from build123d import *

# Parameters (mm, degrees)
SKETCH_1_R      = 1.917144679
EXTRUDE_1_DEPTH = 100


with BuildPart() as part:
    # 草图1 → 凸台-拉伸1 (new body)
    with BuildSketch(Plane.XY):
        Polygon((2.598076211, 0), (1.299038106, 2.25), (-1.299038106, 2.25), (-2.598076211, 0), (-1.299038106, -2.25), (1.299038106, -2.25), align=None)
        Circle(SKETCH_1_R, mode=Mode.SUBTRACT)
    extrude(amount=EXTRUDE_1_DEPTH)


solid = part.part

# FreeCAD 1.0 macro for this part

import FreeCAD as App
import Part
import Sketcher

V = App.Vector
Q = App.Units.Quantity


def add_polygon(sketch, points):
    """Adds a closed chain of lines whose ends are joined by coincident constraints."""
    first, n = sketch.GeometryCount, len(points)
    for a, b in zip(points, points[1:] + points[:1]):
        sketch.addGeometry(Part.LineSegment(App.Vector(*a, 0), App.Vector(*b, 0)), False)
    for i in range(n):
        sketch.addConstraint(Sketcher.Constraint("Coincident", first + i, 2, first + (i + 1) % n, 1))

doc = App.newDocument("Part")
body = doc.addObject("PartDesign::Body", "Body")

# Sketch on XY plane
sketch1 = body.newObject("Sketcher::SketchObject", "Sketch")
sketch1.AttachmentSupport = (doc.getObject("XY_Plane"), [""])
sketch1.MapMode = "FlatFace"
add_polygon(sketch1, [(2.598076, 0), (1.299038, 2.25), (-1.299038, 2.25), (-2.598076, 0), (-1.299038, -2.25), (1.299038, -2.25)])  # lines 0-5
sketch1.addGeometry(Part.Circle(V(0, 0, 0), V(0, 0, 1), 1.917145), False)  # 6
sketch1.addConstraint(Sketcher.Constraint("Horizontal", 1))
sketch1.addConstraint(Sketcher.Constraint("Horizontal", 4))
sketch1.addConstraint(Sketcher.Constraint("Coincident", 6, 3, -1, 1))
sketch1.addConstraint(Sketcher.Constraint("Symmetric", 0, 2, 3, 2, -1, 1))
sketch1.addConstraint(Sketcher.Constraint("Symmetric", 2, 2, 5, 2, -1, 1))
sketch1.addConstraint(Sketcher.Constraint("PointOnObject", 2, 2, -1))
sketch1.addConstraint(Sketcher.Constraint("Parallel", 2, 5))
sketch1.addConstraint(Sketcher.Constraint("Vertical", 1, 2, 3, 2))
sketch1.addConstraint(Sketcher.Constraint("Angle", 0, Q("120 deg")))
sketch1.addConstraint(Sketcher.Constraint("DistanceY", 3, 2, 1, 2, 4.5))
sketch1.addConstraint(Sketcher.Constraint("Diameter", 6, 3.834289))
sketch1.addConstraint(Sketcher.Constraint("DistanceX", 1, 2, 1, 1, 2.598076))
pad1 = body.newObject("PartDesign::Pad", "Pad")
pad1.Profile = sketch1
pad1.Length = 100

doc.recompute()
